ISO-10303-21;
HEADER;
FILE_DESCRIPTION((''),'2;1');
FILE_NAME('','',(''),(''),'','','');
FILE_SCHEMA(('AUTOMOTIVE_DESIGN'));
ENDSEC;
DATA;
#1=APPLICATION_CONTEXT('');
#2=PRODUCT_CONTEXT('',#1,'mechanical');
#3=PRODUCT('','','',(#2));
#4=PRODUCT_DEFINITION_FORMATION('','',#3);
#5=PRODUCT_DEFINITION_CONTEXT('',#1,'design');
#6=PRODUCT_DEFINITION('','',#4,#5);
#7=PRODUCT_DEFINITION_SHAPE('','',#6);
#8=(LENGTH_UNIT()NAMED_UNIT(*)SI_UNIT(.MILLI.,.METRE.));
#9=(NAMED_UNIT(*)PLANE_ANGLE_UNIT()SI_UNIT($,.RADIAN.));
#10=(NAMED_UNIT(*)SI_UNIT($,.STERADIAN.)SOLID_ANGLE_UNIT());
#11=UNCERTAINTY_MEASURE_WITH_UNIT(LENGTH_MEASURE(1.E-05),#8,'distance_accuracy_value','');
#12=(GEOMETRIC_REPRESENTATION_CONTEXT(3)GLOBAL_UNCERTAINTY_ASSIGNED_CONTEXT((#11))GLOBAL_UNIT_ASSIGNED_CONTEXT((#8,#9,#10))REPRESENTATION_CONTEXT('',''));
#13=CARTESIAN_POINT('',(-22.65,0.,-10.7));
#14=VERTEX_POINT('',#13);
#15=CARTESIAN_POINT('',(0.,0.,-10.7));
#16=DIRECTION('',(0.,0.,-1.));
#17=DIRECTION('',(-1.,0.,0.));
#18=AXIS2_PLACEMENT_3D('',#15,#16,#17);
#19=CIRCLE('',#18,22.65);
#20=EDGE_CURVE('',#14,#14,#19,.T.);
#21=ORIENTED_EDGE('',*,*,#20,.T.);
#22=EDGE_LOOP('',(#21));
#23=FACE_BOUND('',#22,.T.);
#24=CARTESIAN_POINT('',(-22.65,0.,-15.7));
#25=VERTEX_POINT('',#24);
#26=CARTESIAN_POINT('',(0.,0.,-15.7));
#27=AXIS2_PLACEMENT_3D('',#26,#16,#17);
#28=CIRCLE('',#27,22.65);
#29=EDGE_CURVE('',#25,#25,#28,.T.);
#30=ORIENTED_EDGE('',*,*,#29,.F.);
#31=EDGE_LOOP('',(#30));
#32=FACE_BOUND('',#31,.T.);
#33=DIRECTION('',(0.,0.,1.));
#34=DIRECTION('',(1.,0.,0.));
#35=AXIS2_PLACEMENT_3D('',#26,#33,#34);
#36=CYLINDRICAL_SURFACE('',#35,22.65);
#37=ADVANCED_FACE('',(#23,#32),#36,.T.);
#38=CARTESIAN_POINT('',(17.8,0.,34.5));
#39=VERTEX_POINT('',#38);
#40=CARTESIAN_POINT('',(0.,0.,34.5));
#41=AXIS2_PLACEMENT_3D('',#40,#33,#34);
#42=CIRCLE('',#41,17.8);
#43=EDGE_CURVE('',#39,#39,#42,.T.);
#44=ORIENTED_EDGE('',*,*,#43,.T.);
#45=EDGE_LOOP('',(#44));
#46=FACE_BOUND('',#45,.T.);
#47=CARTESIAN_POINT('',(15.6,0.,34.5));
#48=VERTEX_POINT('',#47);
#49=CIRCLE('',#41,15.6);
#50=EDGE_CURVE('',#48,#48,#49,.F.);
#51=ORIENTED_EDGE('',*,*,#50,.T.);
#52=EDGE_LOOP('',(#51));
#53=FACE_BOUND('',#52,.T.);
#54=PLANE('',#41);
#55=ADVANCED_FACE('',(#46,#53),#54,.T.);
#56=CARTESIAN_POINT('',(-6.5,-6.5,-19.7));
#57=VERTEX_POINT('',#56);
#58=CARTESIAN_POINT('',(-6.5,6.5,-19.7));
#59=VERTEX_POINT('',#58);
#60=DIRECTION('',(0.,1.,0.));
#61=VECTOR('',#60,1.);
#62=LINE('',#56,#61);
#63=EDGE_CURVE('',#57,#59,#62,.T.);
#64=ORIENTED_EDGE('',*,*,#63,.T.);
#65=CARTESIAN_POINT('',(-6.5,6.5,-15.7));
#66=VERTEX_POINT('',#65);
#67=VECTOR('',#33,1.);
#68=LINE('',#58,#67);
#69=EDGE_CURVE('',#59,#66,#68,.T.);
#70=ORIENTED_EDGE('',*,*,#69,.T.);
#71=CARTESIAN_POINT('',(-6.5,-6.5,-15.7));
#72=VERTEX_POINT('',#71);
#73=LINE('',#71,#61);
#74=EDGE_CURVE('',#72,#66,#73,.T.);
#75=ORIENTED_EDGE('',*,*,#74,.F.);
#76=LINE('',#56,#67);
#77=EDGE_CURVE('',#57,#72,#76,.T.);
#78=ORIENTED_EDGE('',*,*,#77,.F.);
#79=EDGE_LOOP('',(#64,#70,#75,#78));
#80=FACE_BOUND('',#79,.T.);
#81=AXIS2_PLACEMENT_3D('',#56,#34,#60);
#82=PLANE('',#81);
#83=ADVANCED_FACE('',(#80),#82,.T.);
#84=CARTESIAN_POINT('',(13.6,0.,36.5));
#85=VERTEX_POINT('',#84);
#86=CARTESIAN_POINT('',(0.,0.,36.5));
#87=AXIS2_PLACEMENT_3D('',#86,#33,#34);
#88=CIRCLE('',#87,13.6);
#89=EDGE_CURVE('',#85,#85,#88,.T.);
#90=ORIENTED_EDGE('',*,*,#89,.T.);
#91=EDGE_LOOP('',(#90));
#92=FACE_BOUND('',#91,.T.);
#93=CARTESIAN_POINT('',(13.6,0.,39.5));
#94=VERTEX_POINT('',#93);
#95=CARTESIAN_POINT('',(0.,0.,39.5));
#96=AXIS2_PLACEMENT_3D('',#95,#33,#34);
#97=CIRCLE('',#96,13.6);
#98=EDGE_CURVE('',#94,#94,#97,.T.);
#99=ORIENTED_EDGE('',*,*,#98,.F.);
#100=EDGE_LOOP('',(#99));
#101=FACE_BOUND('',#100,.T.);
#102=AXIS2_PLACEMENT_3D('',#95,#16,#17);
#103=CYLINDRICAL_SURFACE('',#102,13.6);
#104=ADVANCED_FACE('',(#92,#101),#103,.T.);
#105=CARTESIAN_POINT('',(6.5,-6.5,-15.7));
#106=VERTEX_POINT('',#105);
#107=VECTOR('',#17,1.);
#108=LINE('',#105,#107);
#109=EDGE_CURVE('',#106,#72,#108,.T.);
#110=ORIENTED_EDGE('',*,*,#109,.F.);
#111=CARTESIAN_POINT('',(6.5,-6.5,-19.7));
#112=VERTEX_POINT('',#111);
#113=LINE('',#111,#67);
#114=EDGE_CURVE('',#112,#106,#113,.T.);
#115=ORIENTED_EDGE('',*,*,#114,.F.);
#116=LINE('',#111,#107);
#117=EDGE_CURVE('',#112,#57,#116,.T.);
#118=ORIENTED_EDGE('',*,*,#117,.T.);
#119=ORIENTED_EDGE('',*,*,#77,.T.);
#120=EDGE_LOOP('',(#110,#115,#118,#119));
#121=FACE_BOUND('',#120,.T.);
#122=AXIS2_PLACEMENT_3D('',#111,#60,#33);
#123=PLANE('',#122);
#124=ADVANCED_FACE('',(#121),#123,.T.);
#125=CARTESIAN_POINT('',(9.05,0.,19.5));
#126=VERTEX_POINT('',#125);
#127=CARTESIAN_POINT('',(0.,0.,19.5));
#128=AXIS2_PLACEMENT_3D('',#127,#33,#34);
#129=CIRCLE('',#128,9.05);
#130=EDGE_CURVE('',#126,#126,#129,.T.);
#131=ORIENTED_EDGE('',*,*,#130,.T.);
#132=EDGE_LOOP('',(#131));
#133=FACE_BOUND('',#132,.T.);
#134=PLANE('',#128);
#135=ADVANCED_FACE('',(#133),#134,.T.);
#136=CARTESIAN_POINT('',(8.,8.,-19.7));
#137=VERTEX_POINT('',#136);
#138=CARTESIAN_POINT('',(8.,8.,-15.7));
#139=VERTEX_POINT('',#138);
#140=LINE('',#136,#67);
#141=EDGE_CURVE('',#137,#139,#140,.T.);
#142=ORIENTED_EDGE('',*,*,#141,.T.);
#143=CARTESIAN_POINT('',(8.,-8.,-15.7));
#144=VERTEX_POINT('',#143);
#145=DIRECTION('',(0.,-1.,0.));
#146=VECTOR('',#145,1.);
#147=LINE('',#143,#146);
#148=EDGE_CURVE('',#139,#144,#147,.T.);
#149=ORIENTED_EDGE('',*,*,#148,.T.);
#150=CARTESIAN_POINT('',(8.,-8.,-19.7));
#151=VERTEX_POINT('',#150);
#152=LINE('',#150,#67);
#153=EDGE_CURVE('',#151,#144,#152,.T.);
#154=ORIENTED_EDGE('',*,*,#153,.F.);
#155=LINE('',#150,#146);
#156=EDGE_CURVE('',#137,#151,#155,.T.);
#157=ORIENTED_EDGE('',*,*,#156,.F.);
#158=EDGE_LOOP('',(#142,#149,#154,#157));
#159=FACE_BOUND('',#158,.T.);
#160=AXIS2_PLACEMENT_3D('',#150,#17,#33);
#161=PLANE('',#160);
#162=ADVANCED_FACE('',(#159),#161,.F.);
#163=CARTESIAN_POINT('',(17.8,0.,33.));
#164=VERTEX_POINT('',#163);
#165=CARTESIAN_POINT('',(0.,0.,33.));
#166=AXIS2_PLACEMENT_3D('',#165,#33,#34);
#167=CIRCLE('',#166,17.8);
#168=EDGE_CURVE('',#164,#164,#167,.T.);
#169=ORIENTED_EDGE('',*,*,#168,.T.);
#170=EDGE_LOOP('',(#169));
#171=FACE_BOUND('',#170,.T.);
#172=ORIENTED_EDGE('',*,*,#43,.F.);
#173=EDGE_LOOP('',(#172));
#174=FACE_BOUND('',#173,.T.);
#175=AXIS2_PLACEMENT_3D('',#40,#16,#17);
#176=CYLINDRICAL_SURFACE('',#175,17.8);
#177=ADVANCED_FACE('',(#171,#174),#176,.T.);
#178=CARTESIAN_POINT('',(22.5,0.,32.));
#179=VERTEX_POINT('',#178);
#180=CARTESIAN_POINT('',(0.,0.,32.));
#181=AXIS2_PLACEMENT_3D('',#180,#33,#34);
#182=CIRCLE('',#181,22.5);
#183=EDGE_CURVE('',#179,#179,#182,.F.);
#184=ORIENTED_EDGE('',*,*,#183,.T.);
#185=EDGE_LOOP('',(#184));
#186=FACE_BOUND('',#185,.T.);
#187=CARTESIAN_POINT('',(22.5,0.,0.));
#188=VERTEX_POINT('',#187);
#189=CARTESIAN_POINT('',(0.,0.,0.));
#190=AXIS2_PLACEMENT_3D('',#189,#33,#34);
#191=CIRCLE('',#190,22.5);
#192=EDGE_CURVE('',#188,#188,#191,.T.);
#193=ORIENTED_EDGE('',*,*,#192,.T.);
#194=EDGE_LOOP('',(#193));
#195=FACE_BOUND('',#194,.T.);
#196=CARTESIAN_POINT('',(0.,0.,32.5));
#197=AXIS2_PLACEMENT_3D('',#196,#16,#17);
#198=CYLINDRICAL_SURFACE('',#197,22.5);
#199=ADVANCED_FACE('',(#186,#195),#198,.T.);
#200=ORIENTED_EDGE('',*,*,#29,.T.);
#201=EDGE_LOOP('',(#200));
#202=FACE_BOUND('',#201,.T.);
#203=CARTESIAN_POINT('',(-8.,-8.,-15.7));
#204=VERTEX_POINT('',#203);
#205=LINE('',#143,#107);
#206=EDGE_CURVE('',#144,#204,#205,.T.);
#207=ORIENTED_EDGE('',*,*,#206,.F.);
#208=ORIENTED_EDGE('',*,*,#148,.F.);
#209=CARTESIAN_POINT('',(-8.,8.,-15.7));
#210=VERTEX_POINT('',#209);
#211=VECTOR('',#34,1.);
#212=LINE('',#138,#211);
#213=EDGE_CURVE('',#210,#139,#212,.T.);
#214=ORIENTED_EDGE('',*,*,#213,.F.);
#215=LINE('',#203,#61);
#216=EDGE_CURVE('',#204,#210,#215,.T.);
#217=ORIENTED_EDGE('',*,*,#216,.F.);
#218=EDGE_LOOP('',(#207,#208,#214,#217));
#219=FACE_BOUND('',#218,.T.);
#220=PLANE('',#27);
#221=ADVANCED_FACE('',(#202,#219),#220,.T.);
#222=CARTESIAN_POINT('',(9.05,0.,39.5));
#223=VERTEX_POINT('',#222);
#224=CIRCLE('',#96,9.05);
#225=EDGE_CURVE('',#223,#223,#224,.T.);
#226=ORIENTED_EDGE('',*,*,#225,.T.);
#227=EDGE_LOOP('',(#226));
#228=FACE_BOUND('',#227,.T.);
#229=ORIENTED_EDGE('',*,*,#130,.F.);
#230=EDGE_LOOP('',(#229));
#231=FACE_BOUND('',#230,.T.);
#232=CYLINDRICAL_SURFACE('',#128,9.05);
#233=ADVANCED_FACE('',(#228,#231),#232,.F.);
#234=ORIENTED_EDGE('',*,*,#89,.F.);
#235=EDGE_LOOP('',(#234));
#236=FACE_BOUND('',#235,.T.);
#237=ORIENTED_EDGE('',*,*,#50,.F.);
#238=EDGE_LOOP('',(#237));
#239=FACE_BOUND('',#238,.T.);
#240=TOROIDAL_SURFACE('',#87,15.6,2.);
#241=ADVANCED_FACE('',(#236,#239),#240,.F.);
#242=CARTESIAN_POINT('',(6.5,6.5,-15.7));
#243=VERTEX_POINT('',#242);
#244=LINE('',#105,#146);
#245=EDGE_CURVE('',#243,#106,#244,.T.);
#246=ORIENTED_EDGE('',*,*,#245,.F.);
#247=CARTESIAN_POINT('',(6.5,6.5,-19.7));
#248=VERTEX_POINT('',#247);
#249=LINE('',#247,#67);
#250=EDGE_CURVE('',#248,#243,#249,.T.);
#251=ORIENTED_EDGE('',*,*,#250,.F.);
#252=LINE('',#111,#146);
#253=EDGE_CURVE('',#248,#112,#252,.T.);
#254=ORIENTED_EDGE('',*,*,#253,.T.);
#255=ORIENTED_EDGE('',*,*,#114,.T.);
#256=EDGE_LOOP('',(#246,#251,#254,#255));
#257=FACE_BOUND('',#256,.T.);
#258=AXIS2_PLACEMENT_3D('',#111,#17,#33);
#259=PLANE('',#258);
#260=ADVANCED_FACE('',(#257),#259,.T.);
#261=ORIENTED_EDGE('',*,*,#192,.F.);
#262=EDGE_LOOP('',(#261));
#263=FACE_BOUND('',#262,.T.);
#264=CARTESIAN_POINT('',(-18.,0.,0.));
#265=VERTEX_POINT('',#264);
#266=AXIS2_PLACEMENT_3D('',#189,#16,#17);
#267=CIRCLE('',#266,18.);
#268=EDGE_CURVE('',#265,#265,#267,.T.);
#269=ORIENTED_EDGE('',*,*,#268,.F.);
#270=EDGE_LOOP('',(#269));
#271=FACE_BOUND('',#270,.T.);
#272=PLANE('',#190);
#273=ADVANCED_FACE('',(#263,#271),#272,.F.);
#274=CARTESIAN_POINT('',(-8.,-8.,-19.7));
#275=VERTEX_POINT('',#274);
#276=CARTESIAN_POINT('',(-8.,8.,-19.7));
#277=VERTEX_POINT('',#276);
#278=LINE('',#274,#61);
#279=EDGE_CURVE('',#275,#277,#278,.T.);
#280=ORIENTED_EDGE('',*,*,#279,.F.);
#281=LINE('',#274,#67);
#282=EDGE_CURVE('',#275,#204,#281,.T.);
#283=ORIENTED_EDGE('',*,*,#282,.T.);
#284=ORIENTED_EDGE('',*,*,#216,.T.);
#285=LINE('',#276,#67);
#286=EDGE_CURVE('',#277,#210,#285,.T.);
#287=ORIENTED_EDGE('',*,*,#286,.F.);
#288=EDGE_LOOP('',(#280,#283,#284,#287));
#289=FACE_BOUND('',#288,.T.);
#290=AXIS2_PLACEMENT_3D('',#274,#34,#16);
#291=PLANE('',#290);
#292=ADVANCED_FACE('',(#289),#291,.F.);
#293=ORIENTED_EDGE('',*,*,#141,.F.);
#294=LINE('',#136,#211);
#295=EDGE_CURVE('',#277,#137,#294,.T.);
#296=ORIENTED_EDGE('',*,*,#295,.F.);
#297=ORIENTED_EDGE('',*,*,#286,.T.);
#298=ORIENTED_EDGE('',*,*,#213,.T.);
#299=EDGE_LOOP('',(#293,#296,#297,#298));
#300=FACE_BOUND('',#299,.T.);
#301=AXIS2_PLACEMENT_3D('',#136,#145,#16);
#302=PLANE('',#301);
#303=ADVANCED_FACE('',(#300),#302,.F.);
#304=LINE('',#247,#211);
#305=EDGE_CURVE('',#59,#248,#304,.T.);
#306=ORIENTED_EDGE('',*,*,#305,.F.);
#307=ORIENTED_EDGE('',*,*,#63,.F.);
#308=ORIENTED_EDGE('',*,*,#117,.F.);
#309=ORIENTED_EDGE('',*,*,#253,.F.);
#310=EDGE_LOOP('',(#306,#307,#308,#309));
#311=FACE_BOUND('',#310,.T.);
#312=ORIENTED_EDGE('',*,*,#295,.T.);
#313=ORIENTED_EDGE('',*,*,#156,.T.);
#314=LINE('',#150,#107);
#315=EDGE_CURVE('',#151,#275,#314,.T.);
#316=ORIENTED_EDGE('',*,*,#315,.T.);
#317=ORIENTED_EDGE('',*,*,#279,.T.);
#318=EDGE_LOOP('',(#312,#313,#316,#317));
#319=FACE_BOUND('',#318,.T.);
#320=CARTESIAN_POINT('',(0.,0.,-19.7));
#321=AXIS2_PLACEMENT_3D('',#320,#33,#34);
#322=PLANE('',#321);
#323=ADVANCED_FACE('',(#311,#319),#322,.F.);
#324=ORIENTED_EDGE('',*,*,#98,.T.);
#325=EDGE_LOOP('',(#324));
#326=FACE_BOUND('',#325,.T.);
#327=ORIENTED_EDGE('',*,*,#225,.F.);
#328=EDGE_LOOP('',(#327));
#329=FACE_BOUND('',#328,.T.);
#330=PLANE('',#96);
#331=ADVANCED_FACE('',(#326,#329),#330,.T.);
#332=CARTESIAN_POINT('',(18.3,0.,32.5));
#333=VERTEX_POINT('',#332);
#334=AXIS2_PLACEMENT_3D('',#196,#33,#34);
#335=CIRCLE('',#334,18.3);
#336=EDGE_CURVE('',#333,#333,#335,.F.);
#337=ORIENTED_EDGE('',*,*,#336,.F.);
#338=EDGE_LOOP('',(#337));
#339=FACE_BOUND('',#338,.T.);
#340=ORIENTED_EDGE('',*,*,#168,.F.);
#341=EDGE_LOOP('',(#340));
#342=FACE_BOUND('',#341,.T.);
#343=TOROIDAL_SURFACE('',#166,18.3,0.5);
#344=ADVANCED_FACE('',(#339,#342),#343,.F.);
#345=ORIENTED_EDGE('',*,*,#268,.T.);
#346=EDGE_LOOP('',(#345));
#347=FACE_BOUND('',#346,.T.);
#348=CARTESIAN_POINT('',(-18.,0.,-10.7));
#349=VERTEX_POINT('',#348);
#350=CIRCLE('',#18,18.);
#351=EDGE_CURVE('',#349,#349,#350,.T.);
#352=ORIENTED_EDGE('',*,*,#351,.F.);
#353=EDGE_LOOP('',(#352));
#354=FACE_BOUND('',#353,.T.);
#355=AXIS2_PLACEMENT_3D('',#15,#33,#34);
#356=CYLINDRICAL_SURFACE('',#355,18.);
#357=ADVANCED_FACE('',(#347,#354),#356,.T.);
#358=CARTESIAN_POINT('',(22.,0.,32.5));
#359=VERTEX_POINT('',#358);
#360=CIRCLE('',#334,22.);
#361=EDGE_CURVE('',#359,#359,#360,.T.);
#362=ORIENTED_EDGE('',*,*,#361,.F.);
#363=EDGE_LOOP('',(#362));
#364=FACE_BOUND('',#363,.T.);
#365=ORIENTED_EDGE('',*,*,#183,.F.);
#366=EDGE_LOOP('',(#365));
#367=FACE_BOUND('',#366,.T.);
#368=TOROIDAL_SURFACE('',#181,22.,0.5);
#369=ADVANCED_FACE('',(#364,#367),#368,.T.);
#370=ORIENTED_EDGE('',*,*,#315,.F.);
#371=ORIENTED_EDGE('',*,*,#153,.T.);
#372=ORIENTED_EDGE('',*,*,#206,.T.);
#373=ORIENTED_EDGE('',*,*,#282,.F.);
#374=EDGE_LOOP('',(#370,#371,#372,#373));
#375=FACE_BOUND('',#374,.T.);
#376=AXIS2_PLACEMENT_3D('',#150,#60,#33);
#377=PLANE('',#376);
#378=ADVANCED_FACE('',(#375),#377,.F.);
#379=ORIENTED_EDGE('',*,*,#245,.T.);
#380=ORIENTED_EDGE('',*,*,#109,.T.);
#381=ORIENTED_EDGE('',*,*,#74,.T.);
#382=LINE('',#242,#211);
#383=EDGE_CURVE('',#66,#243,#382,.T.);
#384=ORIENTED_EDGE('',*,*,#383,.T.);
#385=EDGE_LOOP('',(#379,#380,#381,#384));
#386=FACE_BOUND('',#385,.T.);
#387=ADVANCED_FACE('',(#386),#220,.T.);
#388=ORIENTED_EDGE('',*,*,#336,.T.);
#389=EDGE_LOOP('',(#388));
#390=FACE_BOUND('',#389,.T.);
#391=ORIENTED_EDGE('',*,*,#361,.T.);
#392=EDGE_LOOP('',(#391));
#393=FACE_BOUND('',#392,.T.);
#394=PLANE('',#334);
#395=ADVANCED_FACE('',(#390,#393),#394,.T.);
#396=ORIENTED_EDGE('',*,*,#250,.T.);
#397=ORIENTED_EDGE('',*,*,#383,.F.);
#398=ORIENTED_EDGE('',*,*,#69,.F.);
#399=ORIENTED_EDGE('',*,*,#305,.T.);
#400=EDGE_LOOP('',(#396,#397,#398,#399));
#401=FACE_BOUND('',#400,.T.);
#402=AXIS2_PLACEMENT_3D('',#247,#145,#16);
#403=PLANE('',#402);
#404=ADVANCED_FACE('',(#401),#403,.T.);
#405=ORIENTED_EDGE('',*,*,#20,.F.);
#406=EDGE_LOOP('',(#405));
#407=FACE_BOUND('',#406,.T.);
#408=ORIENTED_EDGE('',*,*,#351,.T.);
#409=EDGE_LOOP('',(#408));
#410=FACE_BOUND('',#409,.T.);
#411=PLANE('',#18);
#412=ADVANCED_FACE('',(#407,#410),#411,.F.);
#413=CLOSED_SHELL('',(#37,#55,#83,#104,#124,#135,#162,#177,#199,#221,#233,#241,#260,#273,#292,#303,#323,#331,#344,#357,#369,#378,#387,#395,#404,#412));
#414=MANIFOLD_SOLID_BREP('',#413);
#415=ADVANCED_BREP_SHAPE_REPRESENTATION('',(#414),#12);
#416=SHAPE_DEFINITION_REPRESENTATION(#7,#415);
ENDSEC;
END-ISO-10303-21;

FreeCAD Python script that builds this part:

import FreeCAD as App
import Part
import Sketcher

V = App.Vector


def edges_at(feature, points):
    """Names of the edges that pass closest to the given points."""
    edges = feature.Shape.Edges
    near = lambda p: min(range(len(edges)), key=lambda i: edges[i].distToShape(Part.Vertex(*p))[0])
    return sorted({f"Edge{near(p) + 1}" for p in points})

doc = App.newDocument("Part")
body = doc.addObject("PartDesign::Body", "Body")

sketch1 = doc.addObject("Sketcher::SketchObject", "Sketch")
body.addObject(sketch1)
sketch1.AttachmentSupport = (doc.XY_Plane, [""])
sketch1.MapMode = "FlatFace"
sketch1.addGeometry(Part.Circle(V(0, 0, 0), V(0, 0, 1), 22), False)
sketch1.addConstraint([
    Sketcher.Constraint("Coincident", 0, 3, -1, 1),
    Sketcher.Constraint("Diameter", 0, 45.0),
])
pad1 = doc.addObject("PartDesign::Pad", "Pad")
body.addObject(pad1)
pad1.Profile = sketch1
pad1.Length = 32.5

sketch2 = doc.addObject("Sketcher::SketchObject", "Sketch001")
body.addObject(sketch2)
sketch2.AttachmentSupport = (doc.XY_Plane, [""])
sketch2.MapMode = "FlatFace"
sketch2.AttachmentOffset = App.Placement(V(0, 0, 32.5), App.Rotation())
sketch2.addGeometry(Part.Circle(V(0, 0, 0), V(0, 0, 1), 18), False)
sketch2.addConstraint([
    Sketcher.Constraint("Coincident", 0, 3, -1, 1),
    Sketcher.Constraint("Diameter", 0, 35.6),
])
pad2 = doc.addObject("PartDesign::Pad", "Pad001")
body.addObject(pad2)
pad2.Profile = sketch2
pad2.Length = 2
doc.recompute()

fillet = doc.addObject("PartDesign::Fillet", "Fillet")
body.addObject(fillet)
fillet.Base = (pad2, edges_at(pad2, [(-17.8, 0, 32.5)]))
fillet.Radius = 0.5

sketch3 = doc.addObject("Sketcher::SketchObject", "Sketch002")
body.addObject(sketch3)
sketch3.AttachmentSupport = (doc.XY_Plane, [""])
sketch3.MapMode = "FlatFace"
sketch3.AttachmentOffset = App.Placement(V(0, 0, 34.5), App.Rotation())
sketch3.addGeometry(Part.Circle(V(0, 0, 0), V(0, 0, 1), 14), False)
sketch3.addConstraint([
    Sketcher.Constraint("Coincident", 0, 3, -1, 1),
    Sketcher.Constraint("Diameter", 0, 27.2),
])
pad3 = doc.addObject("PartDesign::Pad", "Pad002")
body.addObject(pad3)
pad3.Profile = sketch3
pad3.Length = 5
doc.recompute()

fillet2 = doc.addObject("PartDesign::Fillet", "Fillet001")
body.addObject(fillet2)
fillet2.Base = (pad3, edges_at(pad3, [(-13.6, 0, 34.5)]))
fillet2.Radius = 2

sketch4 = doc.addObject("Sketcher::SketchObject", "Sketch003")
body.addObject(sketch4)
sketch4.AttachmentSupport = (doc.XY_Plane, [""])
sketch4.MapMode = "FlatFace"
sketch4.AttachmentOffset = App.Placement(V(0, 0, 39.5), App.Rotation())
sketch4.addGeometry(Part.Circle(V(0, 0, 0), V(0, 0, 1), 9), False)
sketch4.addConstraint([
    Sketcher.Constraint("Coincident", 0, 3, -1, 1),
    Sketcher.Constraint("Diameter", 0, 18.1),
])
pocket1 = doc.addObject("PartDesign::Pocket", "Pocket")
body.addObject(pocket1)
pocket1.Profile = sketch4
pocket1.Length = 20
doc.recompute()

fillet3 = doc.addObject("PartDesign::Fillet", "Fillet002")
body.addObject(fillet3)
fillet3.Base = (pocket1, edges_at(pocket1, [(-22.5, 0, 32.5)]))
fillet3.Radius = 0.5

sketch5 = doc.addObject("Sketcher::SketchObject", "Sketch004")
body.addObject(sketch5)
sketch5.AttachmentSupport = (doc.XY_Plane, [""])
sketch5.MapMode = "FlatFace"
sketch5.addGeometry(Part.Circle(V(0, 0, 0), V(0, 0, 1), 18), False)
sketch5.addConstraint([
    Sketcher.Constraint("Coincident", 0, 3, -1, 1),
    Sketcher.Constraint("Diameter", 0, 36.0),
])
pad4 = doc.addObject("PartDesign::Pad", "Pad003")
body.addObject(pad4)
pad4.Profile = sketch5
pad4.Length = 10.7
pad4.Reversed = True

sketch6 = doc.addObject("Sketcher::SketchObject", "Sketch005")
body.addObject(sketch6)
sketch6.AttachmentSupport = (doc.XY_Plane, [""])
sketch6.MapMode = "FlatFace"
sketch6.AttachmentOffset = App.Placement(V(0, 0, -10.7), App.Rotation())
sketch6.addGeometry(Part.Circle(V(0, 0, 0), V(0, 0, 1), 23), False)
sketch6.addConstraint([
    Sketcher.Constraint("Coincident", 0, 3, -1, 1),
    Sketcher.Constraint("Diameter", 0, 45.3),
])
pad5 = doc.addObject("PartDesign::Pad", "Pad004")
body.addObject(pad5)
pad5.Profile = sketch6
pad5.Length = 5
pad5.Reversed = True

sketch7 = doc.addObject("Sketcher::SketchObject", "Sketch006")
body.addObject(sketch7)
sketch7.AttachmentSupport = (doc.XY_Plane, [""])
sketch7.MapMode = "FlatFace"
sketch7.AttachmentOffset = App.Placement(V(0, 0, -15.7), App.Rotation())
sketch7.addGeometry([
    Part.LineSegment(V(8, 8, 0), V(8, -8, 0)),
    Part.LineSegment(V(8, -8, 0), V(-8, -8, 0)),
    Part.LineSegment(V(-8, -8, 0), V(-8, 8, 0)),
    Part.LineSegment(V(-8, 8, 0), V(8, 8, 0)),
    Part.LineSegment(V(-6, -6, 0), V(6, -6, 0)),
    Part.LineSegment(V(6, -6, 0), V(6, 6, 0)),
    Part.LineSegment(V(6, 6, 0), V(-6, 6, 0)),
    Part.LineSegment(V(-6, 6, 0), V(-6, -6, 0)),
], False)
sketch7.addConstraint([
    Sketcher.Constraint("Coincident", 0, 2, 1, 1),
    Sketcher.Constraint("Coincident", 1, 2, 2, 1),
    Sketcher.Constraint("Coincident", 2, 2, 3, 1),
    Sketcher.Constraint("Coincident", 3, 2, 0, 1),
    Sketcher.Constraint("Coincident", 4, 2, 5, 1),
    Sketcher.Constraint("Coincident", 5, 2, 6, 1),
    Sketcher.Constraint("Coincident", 6, 2, 7, 1),
    Sketcher.Constraint("Coincident", 7, 2, 4, 1),
    Sketcher.Constraint("Vertical", 0),
    Sketcher.Constraint("Horizontal", 1),
    Sketcher.Constraint("Vertical", 2),
    Sketcher.Constraint("Horizontal", 3),
    Sketcher.Constraint("Horizontal", 4),
    Sketcher.Constraint("Vertical", 5),
    Sketcher.Constraint("Horizontal", 6),
    Sketcher.Constraint("Vertical", 7),
    Sketcher.Constraint("Symmetric", 0, 2, 2, 2, -1, 1),
    Sketcher.Constraint("Symmetric", 4, 2, 6, 2, -1, 1),
    Sketcher.Constraint("Equal", 3, 0),
    Sketcher.Constraint("Equal", 6, 5),
    Sketcher.Constraint("DistanceX", 1, 2, 1, 1, 16.0),
    Sketcher.Constraint("DistanceX", 4, 1, 4, 2, 13.0),
])
pad6 = doc.addObject("PartDesign::Pad", "Pad005")
body.addObject(pad6)
pad6.Profile = sketch7
pad6.Length = 4
pad6.Reversed = True

doc.recompute()
